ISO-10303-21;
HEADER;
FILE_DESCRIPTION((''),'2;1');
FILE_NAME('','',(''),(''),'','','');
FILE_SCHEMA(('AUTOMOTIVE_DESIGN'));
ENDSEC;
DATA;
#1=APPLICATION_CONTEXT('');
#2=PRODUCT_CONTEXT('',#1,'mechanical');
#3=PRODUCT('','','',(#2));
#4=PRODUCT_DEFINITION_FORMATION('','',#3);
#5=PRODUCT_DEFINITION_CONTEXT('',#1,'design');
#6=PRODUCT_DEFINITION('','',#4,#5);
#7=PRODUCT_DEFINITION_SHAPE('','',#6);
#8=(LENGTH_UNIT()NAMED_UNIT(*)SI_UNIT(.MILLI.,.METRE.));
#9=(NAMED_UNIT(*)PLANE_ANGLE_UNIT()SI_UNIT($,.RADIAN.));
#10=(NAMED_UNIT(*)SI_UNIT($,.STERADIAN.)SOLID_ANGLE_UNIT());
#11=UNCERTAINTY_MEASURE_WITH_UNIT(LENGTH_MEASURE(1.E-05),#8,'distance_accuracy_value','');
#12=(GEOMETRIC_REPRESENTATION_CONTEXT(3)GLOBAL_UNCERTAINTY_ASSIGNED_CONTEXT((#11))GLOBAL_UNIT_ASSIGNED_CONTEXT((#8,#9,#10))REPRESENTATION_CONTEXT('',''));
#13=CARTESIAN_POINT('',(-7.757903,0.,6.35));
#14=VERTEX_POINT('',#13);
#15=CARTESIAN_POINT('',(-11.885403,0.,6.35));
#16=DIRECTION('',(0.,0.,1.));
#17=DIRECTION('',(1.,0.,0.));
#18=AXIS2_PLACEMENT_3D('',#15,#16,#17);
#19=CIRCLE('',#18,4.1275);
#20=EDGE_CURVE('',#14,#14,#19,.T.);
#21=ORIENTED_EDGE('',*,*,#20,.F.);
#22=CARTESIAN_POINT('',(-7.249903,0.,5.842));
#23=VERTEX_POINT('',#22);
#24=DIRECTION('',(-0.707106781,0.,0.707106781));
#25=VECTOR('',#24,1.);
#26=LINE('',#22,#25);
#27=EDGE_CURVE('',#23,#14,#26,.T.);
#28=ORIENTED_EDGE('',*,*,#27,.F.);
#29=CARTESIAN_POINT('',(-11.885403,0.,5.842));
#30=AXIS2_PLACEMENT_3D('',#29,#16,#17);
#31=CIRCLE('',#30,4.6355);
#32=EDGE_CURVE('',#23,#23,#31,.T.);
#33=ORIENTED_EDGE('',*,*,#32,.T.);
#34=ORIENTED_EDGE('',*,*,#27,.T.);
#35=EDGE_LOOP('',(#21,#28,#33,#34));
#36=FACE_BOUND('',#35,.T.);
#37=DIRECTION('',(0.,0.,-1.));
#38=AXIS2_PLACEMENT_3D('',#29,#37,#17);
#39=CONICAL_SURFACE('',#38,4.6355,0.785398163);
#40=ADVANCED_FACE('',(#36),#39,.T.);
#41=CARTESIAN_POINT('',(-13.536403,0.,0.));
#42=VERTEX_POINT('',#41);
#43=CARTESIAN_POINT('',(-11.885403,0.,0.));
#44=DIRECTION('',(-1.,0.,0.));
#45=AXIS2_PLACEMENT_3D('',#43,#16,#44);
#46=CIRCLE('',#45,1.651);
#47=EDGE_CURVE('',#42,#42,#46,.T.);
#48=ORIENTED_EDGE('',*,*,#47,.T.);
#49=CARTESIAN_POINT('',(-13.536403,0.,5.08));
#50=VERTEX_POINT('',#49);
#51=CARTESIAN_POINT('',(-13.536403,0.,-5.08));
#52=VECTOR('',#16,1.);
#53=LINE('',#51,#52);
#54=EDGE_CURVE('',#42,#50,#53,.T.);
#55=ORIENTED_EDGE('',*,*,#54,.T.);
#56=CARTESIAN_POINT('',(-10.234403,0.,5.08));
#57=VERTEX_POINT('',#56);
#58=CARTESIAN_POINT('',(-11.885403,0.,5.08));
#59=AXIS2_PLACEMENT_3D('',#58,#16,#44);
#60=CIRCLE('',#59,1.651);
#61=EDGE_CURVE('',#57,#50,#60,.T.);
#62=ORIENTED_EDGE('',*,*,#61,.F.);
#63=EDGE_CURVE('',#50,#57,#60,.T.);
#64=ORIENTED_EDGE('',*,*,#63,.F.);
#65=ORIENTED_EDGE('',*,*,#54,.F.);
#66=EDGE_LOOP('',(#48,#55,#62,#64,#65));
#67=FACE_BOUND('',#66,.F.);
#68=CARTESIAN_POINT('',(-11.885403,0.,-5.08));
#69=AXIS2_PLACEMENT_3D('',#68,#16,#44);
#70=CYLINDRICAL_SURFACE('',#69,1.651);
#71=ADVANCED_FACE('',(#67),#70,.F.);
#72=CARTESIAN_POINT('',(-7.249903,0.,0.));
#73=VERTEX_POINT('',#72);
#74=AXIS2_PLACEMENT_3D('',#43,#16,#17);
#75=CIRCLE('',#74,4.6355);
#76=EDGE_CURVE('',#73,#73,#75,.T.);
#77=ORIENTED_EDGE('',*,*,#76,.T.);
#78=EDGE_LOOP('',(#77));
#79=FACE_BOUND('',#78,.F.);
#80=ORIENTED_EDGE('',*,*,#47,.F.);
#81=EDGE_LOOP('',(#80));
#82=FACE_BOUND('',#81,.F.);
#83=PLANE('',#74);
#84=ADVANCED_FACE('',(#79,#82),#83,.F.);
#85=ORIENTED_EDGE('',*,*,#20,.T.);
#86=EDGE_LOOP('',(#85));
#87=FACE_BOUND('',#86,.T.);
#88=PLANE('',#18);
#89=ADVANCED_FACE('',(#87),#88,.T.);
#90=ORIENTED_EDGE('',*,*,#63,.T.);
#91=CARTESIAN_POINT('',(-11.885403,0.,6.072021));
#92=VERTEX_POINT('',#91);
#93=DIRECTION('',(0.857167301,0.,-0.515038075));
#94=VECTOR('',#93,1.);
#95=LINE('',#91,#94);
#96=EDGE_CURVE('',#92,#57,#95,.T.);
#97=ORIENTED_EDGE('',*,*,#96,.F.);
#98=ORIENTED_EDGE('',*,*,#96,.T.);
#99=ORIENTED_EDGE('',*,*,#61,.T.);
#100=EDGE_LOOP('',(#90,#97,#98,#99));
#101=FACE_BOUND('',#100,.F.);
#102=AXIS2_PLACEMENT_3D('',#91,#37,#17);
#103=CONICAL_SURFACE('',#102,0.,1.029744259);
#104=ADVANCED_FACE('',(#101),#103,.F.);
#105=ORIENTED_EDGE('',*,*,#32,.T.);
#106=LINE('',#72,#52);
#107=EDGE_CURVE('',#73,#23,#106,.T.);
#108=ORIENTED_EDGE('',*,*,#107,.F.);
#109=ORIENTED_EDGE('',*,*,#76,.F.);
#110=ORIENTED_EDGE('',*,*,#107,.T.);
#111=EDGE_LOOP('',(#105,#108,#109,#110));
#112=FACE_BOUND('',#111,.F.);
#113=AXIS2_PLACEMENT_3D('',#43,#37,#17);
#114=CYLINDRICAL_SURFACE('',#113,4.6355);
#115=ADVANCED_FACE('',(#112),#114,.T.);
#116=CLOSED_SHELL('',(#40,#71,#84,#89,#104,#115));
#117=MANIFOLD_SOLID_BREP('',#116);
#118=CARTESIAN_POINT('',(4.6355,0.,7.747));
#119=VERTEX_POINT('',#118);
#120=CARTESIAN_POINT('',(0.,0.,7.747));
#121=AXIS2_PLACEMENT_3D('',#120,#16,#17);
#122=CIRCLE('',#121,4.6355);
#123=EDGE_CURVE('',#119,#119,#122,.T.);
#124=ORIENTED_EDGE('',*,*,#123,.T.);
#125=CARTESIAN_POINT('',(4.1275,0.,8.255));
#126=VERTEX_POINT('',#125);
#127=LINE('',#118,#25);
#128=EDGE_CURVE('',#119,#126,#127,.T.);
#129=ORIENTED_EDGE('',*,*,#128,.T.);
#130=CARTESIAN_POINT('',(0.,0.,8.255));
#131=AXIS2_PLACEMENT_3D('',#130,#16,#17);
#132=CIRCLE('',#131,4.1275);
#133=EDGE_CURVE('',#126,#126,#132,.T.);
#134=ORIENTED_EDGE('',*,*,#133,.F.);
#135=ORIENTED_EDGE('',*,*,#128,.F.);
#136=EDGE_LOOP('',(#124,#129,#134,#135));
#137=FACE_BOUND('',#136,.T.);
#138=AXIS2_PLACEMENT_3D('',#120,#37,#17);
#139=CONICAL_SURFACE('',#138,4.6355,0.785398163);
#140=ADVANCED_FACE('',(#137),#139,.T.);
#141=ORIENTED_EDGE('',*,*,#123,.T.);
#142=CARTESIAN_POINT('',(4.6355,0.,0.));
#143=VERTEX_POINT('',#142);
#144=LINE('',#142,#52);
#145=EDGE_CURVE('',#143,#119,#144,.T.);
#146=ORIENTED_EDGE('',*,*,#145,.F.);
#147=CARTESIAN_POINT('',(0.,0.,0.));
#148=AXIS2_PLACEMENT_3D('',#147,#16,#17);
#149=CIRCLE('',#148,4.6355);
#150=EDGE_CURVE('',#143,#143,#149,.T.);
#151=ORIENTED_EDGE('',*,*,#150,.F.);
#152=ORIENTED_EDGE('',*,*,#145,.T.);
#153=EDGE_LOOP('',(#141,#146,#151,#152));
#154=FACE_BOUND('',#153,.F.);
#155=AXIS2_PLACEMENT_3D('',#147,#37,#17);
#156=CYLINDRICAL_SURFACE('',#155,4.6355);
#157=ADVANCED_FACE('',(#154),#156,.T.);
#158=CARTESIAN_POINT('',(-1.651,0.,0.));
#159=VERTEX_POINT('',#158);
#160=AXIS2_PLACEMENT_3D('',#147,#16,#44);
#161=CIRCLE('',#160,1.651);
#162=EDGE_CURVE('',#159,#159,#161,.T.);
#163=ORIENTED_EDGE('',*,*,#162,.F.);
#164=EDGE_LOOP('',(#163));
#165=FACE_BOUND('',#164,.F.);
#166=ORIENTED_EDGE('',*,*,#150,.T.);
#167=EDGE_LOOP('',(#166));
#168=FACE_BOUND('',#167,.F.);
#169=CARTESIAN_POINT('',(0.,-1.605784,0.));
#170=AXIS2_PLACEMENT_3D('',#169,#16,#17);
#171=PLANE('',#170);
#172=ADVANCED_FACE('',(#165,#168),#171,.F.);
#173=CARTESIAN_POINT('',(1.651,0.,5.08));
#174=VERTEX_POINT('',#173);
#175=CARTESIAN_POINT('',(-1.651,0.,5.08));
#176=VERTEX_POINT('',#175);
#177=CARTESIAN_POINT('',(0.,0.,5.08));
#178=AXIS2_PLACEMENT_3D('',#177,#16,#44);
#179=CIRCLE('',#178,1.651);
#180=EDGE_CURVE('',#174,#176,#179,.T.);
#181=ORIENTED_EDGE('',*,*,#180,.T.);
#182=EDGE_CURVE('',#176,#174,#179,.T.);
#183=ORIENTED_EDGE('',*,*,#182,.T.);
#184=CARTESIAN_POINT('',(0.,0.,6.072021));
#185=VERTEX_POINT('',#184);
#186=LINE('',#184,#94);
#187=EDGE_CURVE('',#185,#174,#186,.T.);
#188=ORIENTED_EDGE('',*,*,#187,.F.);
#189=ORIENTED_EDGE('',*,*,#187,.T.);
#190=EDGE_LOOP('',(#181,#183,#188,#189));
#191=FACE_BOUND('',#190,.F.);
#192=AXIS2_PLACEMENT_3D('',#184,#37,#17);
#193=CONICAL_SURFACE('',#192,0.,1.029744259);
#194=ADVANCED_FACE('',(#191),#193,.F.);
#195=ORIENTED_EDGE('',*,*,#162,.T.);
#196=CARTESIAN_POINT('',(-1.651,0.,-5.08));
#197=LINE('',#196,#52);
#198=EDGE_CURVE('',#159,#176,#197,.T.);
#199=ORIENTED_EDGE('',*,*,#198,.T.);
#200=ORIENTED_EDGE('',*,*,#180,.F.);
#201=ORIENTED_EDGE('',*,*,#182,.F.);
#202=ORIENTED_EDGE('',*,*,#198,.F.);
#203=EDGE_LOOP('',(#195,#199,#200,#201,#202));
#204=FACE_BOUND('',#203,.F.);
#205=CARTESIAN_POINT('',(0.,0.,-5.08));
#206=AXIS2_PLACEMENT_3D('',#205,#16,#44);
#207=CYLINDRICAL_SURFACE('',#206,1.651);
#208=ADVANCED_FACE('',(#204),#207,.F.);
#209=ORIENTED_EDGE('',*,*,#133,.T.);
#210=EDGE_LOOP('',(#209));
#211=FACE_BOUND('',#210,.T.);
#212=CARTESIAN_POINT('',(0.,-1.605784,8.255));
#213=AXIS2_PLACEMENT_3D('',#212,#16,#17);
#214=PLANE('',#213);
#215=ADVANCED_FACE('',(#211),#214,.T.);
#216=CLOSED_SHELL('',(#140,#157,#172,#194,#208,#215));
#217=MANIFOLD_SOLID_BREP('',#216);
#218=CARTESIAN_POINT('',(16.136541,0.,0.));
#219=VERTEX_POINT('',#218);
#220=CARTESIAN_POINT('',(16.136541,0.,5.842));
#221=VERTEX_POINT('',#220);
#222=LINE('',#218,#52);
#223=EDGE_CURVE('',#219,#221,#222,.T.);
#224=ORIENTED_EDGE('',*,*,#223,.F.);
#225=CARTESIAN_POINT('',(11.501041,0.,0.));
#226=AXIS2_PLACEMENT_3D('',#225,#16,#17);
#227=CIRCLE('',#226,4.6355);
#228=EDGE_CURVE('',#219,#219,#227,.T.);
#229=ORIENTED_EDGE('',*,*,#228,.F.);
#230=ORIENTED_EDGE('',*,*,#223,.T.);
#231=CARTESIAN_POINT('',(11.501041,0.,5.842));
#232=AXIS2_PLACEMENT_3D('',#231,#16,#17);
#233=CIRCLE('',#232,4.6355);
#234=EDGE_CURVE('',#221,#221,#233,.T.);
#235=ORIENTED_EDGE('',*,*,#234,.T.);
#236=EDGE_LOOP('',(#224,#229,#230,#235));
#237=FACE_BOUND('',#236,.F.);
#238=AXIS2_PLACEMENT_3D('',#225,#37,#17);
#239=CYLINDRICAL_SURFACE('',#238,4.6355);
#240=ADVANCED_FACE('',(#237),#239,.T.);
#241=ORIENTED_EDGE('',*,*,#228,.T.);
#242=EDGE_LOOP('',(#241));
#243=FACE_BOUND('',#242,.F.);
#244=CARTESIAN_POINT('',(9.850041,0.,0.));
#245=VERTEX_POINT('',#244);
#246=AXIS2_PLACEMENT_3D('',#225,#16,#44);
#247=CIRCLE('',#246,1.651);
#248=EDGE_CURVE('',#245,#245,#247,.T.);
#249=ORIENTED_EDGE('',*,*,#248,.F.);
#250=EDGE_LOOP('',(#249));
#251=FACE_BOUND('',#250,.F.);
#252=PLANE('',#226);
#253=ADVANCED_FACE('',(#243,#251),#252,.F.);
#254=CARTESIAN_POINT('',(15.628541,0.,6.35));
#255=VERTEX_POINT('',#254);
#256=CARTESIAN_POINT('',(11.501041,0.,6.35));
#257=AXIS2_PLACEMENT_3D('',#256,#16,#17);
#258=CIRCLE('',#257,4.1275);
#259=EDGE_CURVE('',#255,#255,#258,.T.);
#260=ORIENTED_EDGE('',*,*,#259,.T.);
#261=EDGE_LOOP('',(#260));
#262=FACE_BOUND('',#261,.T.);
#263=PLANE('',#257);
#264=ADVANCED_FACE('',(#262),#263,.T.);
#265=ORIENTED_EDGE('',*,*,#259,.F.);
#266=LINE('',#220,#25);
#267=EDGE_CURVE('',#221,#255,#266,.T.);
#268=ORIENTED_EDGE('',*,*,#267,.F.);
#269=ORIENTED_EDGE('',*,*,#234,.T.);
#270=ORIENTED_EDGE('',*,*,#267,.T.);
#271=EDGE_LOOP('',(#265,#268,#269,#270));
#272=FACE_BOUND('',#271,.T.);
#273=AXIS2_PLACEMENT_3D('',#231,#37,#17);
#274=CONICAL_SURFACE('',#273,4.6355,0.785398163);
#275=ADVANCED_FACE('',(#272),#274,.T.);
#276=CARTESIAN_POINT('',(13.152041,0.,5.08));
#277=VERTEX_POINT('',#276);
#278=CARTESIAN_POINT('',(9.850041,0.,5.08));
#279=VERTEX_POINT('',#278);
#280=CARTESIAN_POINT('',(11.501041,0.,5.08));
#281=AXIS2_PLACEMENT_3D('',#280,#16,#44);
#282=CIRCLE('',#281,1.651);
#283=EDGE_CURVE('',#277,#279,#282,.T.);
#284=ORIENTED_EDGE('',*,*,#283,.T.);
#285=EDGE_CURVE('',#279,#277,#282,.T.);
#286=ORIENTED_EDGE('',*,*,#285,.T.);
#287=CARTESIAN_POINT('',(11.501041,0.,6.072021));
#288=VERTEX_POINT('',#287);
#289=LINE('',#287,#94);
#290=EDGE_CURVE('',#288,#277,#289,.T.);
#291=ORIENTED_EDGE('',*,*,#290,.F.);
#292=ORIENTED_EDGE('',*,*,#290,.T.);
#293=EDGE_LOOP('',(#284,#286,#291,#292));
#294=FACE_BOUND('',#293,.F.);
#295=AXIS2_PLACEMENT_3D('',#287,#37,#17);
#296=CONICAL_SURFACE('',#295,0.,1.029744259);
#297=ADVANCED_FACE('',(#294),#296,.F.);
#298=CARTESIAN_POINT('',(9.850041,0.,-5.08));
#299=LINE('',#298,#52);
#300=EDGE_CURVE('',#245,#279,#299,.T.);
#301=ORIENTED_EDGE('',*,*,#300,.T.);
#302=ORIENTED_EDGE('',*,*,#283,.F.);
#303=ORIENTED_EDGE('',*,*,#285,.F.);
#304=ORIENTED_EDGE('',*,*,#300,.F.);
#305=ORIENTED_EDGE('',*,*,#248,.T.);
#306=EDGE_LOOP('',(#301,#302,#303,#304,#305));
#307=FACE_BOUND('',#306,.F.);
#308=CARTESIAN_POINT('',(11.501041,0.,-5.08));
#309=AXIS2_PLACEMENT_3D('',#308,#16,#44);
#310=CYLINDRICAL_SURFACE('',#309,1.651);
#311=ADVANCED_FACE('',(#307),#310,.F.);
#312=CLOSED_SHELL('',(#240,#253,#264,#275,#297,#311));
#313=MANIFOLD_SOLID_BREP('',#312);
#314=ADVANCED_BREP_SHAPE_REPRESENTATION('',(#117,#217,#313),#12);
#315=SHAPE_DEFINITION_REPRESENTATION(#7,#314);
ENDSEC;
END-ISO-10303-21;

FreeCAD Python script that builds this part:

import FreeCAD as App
import Part
import Sketcher
from FreeCAD import Vector
Q = App.Units.Quantity


def edges_at(feature, points):
    """Names of the edges that pass closest to the given points."""
    edges = feature.Shape.Edges
    near = lambda p: min(range(len(edges)), key=lambda i: edges[i].distToShape(Part.Vertex(*p))[0])
    return sorted({f"Edge{near(p) + 1}" for p in points})

doc = App.newDocument("Part")
body = doc.addObject("PartDesign::Body", "Body")

# Sketch on XY plane
sketch1 = body.newObject("Sketcher::SketchObject", "Sketch")
sketch1.AttachmentSupport = (doc.getObject("XY_Plane"), [""])
sketch1.MapMode = "FlatFace"
sketch1.addGeometry(Part.Circle(Vector(-11.9, 0, 0), Vector(0, 0, 1), 4.6), False)
sketch1.addConstraint([
    Sketcher.Constraint("PointOnObject", 0, 3, -1),
    Sketcher.Constraint("Diameter", 0, Q("0.365 in")),
    Sketcher.Constraint("DistanceX", 0, 3, -1, 1, 11.885403),
])
pad1 = body.newObject("PartDesign::Pad", "Pad")
pad1.Profile = sketch1
pad1.Length = Q("0.25 in")
doc.recompute()

chamfer = body.newObject("PartDesign::Chamfer", "Chamfer")
chamfer.Base = (pad1, edges_at(pad1, [(-16.521, 0, 6.35)]))
chamfer.Size = Q("0.02 in")

# Sketch on XY plane
sketch2 = body.newObject("Sketcher::SketchObject", "Sketch001")
sketch2.AttachmentSupport = (doc.getObject("XY_Plane"), [""])
sketch2.MapMode = "FlatFace"
sketch2.addGeometry([
    Part.Circle(Vector(-11.9, 0, 0), Vector(0, 0, 1), 1.7),
    Part.Circle(Vector(0, 0, 0), Vector(0, 0, 1), 1.7),
    Part.Circle(Vector(11.5, 0, 0), Vector(0, 0, 1), 1.7),
], False)
sketch2.addConstraint([
    Sketcher.Constraint("Coincident", 1, 3, -1, 1),
    Sketcher.Constraint("Equal", 0, 1),
    Sketcher.Constraint("Equal", 1, 2),
    Sketcher.Constraint("PointOnObject", 0, 3, -1),
    Sketcher.Constraint("PointOnObject", 2, 3, -1),
    Sketcher.Constraint("Diameter", 0, Q("0.13 in")),
    Sketcher.Constraint("DistanceX", -1, 1, 2, 3, 11.501041),
    Sketcher.Constraint("DistanceX", 0, 3, -1, 1, 11.885403),
])
doc.recompute()
hole = body.newObject("PartDesign::Hole", "Hole")
hole.Profile = sketch2
hole.ThreadType = "None"
hole.Diameter = Q("0.13 in")
hole.DepthType = "Dimension"
hole.Depth = Q("0.2 in")
hole.DrillPoint = "Angled"
hole.DrillPointAngle = 118
hole.Reversed = True
body2 = doc.addObject("PartDesign::Body", "Body001")

# Sketch on XY plane
sketch3 = body2.newObject("Sketcher::SketchObject", "Sketch002")
sketch3.AttachmentSupport = (doc.getObject("XY_Plane001"), [""])
sketch3.MapMode = "FlatFace"
sketch3.addGeometry(Part.Circle(Vector(11.5, 0, 0), Vector(0, 0, 1), 4.6), False)
sketch3.addConstraint([
    Sketcher.Constraint("PointOnObject", 0, 3, -1),
    Sketcher.Constraint("Diameter", 0, Q("0.365 in")),
    Sketcher.Constraint("DistanceX", -1, 1, 0, 3, 11.501041),
])
pad2 = body2.newObject("PartDesign::Pad", "Pad001")
pad2.Profile = sketch3
pad2.Length = Q("0.25 in")
doc.recompute()

chamfer2 = body2.newObject("PartDesign::Chamfer", "Chamfer001")
chamfer2.Base = (pad2, edges_at(pad2, [(6.866, 0, 6.35)]))
chamfer2.Size = Q("0.02 in")

# Sketch on XY plane
sketch4 = body2.newObject("Sketcher::SketchObject", "Sketch003")
sketch4.AttachmentSupport = (doc.getObject("XY_Plane001"), [""])
sketch4.MapMode = "FlatFace"
sketch4.addGeometry([
    Part.Circle(Vector(-11.9, 0, 0), Vector(0, 0, 1), 1.7),
    Part.Circle(Vector(0, 0, 0), Vector(0, 0, 1), 1.7),
    Part.Circle(Vector(11.5, 0, 0), Vector(0, 0, 1), 1.7),
], False)
sketch4.addConstraint([
    Sketcher.Constraint("Coincident", 1, 3, -1, 1),
    Sketcher.Constraint("Equal", 0, 1),
    Sketcher.Constraint("Equal", 1, 2),
    Sketcher.Constraint("PointOnObject", 0, 3, -1),
    Sketcher.Constraint("PointOnObject", 2, 3, -1),
    Sketcher.Constraint("Diameter", 0, Q("0.13 in")),
    Sketcher.Constraint("DistanceX", -1, 1, 2, 3, 11.501041),
    Sketcher.Constraint("DistanceX", 0, 3, -1, 1, 11.885403),
])
doc.recompute()
hole2 = body2.newObject("PartDesign::Hole", "Hole001")
hole2.Profile = sketch4
hole2.ThreadType = "None"
hole2.Diameter = Q("0.13 in")
hole2.DepthType = "Dimension"
hole2.Depth = Q("0.2 in")
hole2.DrillPoint = "Angled"
hole2.DrillPointAngle = 118
hole2.Reversed = True
body3 = doc.addObject("PartDesign::Body", "Body002")

# Sketch on XY plane
sketch5 = body3.newObject("Sketcher::SketchObject", "Sketch004")
sketch5.AttachmentSupport = (doc.getObject("XY_Plane002"), [""])
sketch5.MapMode = "FlatFace"
sketch5.addGeometry(Part.Circle(Vector(0, 0, 0), Vector(0, 0, 1), 4.6), False)
sketch5.addConstraint([
    Sketcher.Constraint("Coincident", 0, 3, -1, 1),
    Sketcher.Constraint("Diameter", 0, Q("0.365 in")),
])
pad3 = body3.newObject("PartDesign::Pad", "Pad002")
pad3.Profile = sketch5
pad3.Length = Q("0.325 in")
doc.recompute()

chamfer3 = body3.newObject("PartDesign::Chamfer", "Chamfer002")
chamfer3.Base = (pad3, edges_at(pad3, [(-4.636, 0, 8.255)]))
chamfer3.Size = Q("0.02 in")

# Sketch on XY plane
sketch6 = body3.newObject("Sketcher::SketchObject", "Sketch005")
sketch6.AttachmentSupport = (doc.getObject("XY_Plane002"), [""])
sketch6.MapMode = "FlatFace"
sketch6.addGeometry([
    Part.Circle(Vector(-11.9, 0, 0), Vector(0, 0, 1), 1.7),
    Part.Circle(Vector(0, 0, 0), Vector(0, 0, 1), 1.7),
    Part.Circle(Vector(11.5, 0, 0), Vector(0, 0, 1), 1.7),
], False)
sketch6.addConstraint([
    Sketcher.Constraint("Coincident", 1, 3, -1, 1),
    Sketcher.Constraint("Equal", 0, 1),
    Sketcher.Constraint("Equal", 1, 2),
    Sketcher.Constraint("PointOnObject", 0, 3, -1),
    Sketcher.Constraint("PointOnObject", 2, 3, -1),
    Sketcher.Constraint("Diameter", 0, Q("0.13 in")),
    Sketcher.Constraint("DistanceX", -1, 1, 2, 3, 11.501041),
    Sketcher.Constraint("DistanceX", 0, 3, -1, 1, 11.885403),
])
doc.recompute()
hole3 = body3.newObject("PartDesign::Hole", "Hole002")
hole3.Profile = sketch6
hole3.ThreadType = "None"
hole3.Diameter = Q("0.13 in")
hole3.DepthType = "Dimension"
hole3.Depth = Q("0.2 in")
hole3.DrillPoint = "Angled"
hole3.DrillPointAngle = 118
hole3.Reversed = True

doc.recompute()
